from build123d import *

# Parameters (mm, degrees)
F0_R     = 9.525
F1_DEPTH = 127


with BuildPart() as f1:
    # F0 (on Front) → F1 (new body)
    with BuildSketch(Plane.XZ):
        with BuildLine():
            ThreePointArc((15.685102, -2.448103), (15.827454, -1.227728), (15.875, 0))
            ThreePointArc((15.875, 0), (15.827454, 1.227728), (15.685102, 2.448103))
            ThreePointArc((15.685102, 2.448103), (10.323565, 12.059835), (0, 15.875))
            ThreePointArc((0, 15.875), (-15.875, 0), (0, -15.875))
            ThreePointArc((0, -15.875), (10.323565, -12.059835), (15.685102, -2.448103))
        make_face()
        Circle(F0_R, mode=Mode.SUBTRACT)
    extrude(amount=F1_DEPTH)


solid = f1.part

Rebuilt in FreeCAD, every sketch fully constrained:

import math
import FreeCAD as App
import Part
import Sketcher

V = App.Vector
Q = App.Units.Quantity

doc = App.newDocument("Part")
body = doc.addObject("PartDesign::Body", "Body")

# Sketch on XZ plane
sketch1 = body.newObject("Sketcher::SketchObject", "Sketch")
sketch1.AttachmentSupport = (doc.getObject("XZ_Plane"), [""])
sketch1.MapMode = "FlatFace"
sketch1.addGeometry(Part.ArcOfCircle(Part.Circle(V(-0.000135, 0.000009, 0), V(0, 0, 1), 15.875135), math.radians(-8.871008), math.radians(-0.000032)), False)
sketch1.addGeometry(Part.ArcOfCircle(Part.Circle(V(-0.000135, -0.000009, 0), V(0, 0, 1), 15.875135), math.radians(0.000032), math.radians(8.871008)), False)
sketch1.addGeometry(Part.ArcOfCircle(Part.Circle(V(-0.000001, -0.000002, 0), V(0, 0, 1), 15.875002), math.radians(8.871057), math.radians(89.999996)), False)
sketch1.addGeometry(Part.ArcOfCircle(Part.Circle(V(0, 0, 0), V(0, 0, 1), 15.875), math.radians(90), math.radians(270)), False)
sketch1.addGeometry(Part.ArcOfCircle(Part.Circle(V(-0.000001, 0.000002, 0), V(0, 0, 1), 15.875002), math.radians(-89.999996), math.radians(-8.871057)), False)
sketch1.addGeometry(Part.Circle(V(0, 0, 0), V(0, 0, 1), 9.525), False)
sketch1.addConstraint(Sketcher.Constraint("Coincident", 0, 2, 1, 1))
sketch1.addConstraint(Sketcher.Constraint("Coincident", 1, 2, 2, 1))
sketch1.addConstraint(Sketcher.Constraint("Coincident", 2, 2, 3, 1))
sketch1.addConstraint(Sketcher.Constraint("Coincident", 3, 2, 4, 1))
sketch1.addConstraint(Sketcher.Constraint("Coincident", 4, 2, 0, 1))
sketch1.addConstraint(Sketcher.Constraint("Coincident", 2, 3, -1, 1))
sketch1.addConstraint(Sketcher.Constraint("Coincident", 3, 3, -1, 1))
sketch1.addConstraint(Sketcher.Constraint("Coincident", 4, 3, -1, 1))
sketch1.addConstraint(Sketcher.Constraint("Coincident", 5, 3, -1, 1))
sketch1.addConstraint(Sketcher.Constraint("PointOnObject", 0, 2, -1))
sketch1.addConstraint(Sketcher.Constraint("PointOnObject", 2, 2, -2))
sketch1.addConstraint(Sketcher.Constraint("PointOnObject", 3, 2, -2))
sketch1.addConstraint(Sketcher.Constraint("Diameter", 5, Q("0.75 in")))
sketch1.addConstraint(Sketcher.Constraint("Radius", 2, Q("0.6250001 in")))
sketch1.addConstraint(Sketcher.Constraint("DistanceX", -1, 1, 0, 2, Q("0.625 in")))
sketch1.addConstraint(Sketcher.Constraint("Radius", 0, 15.875135))
sketch1.addConstraint(Sketcher.Constraint("Radius", 1, 15.875135))
sketch1.addConstraint(Sketcher.Constraint("DistanceX", -1, 1, 4, 2, 15.685102))
sketch1.addConstraint(Sketcher.Constraint("DistanceY", 4, 3, 1, 2, 2.448101))
pad1 = body.newObject("PartDesign::Pad", "Pad")
pad1.Profile = sketch1
pad1.Length = Q("5 in")

doc.recompute()
